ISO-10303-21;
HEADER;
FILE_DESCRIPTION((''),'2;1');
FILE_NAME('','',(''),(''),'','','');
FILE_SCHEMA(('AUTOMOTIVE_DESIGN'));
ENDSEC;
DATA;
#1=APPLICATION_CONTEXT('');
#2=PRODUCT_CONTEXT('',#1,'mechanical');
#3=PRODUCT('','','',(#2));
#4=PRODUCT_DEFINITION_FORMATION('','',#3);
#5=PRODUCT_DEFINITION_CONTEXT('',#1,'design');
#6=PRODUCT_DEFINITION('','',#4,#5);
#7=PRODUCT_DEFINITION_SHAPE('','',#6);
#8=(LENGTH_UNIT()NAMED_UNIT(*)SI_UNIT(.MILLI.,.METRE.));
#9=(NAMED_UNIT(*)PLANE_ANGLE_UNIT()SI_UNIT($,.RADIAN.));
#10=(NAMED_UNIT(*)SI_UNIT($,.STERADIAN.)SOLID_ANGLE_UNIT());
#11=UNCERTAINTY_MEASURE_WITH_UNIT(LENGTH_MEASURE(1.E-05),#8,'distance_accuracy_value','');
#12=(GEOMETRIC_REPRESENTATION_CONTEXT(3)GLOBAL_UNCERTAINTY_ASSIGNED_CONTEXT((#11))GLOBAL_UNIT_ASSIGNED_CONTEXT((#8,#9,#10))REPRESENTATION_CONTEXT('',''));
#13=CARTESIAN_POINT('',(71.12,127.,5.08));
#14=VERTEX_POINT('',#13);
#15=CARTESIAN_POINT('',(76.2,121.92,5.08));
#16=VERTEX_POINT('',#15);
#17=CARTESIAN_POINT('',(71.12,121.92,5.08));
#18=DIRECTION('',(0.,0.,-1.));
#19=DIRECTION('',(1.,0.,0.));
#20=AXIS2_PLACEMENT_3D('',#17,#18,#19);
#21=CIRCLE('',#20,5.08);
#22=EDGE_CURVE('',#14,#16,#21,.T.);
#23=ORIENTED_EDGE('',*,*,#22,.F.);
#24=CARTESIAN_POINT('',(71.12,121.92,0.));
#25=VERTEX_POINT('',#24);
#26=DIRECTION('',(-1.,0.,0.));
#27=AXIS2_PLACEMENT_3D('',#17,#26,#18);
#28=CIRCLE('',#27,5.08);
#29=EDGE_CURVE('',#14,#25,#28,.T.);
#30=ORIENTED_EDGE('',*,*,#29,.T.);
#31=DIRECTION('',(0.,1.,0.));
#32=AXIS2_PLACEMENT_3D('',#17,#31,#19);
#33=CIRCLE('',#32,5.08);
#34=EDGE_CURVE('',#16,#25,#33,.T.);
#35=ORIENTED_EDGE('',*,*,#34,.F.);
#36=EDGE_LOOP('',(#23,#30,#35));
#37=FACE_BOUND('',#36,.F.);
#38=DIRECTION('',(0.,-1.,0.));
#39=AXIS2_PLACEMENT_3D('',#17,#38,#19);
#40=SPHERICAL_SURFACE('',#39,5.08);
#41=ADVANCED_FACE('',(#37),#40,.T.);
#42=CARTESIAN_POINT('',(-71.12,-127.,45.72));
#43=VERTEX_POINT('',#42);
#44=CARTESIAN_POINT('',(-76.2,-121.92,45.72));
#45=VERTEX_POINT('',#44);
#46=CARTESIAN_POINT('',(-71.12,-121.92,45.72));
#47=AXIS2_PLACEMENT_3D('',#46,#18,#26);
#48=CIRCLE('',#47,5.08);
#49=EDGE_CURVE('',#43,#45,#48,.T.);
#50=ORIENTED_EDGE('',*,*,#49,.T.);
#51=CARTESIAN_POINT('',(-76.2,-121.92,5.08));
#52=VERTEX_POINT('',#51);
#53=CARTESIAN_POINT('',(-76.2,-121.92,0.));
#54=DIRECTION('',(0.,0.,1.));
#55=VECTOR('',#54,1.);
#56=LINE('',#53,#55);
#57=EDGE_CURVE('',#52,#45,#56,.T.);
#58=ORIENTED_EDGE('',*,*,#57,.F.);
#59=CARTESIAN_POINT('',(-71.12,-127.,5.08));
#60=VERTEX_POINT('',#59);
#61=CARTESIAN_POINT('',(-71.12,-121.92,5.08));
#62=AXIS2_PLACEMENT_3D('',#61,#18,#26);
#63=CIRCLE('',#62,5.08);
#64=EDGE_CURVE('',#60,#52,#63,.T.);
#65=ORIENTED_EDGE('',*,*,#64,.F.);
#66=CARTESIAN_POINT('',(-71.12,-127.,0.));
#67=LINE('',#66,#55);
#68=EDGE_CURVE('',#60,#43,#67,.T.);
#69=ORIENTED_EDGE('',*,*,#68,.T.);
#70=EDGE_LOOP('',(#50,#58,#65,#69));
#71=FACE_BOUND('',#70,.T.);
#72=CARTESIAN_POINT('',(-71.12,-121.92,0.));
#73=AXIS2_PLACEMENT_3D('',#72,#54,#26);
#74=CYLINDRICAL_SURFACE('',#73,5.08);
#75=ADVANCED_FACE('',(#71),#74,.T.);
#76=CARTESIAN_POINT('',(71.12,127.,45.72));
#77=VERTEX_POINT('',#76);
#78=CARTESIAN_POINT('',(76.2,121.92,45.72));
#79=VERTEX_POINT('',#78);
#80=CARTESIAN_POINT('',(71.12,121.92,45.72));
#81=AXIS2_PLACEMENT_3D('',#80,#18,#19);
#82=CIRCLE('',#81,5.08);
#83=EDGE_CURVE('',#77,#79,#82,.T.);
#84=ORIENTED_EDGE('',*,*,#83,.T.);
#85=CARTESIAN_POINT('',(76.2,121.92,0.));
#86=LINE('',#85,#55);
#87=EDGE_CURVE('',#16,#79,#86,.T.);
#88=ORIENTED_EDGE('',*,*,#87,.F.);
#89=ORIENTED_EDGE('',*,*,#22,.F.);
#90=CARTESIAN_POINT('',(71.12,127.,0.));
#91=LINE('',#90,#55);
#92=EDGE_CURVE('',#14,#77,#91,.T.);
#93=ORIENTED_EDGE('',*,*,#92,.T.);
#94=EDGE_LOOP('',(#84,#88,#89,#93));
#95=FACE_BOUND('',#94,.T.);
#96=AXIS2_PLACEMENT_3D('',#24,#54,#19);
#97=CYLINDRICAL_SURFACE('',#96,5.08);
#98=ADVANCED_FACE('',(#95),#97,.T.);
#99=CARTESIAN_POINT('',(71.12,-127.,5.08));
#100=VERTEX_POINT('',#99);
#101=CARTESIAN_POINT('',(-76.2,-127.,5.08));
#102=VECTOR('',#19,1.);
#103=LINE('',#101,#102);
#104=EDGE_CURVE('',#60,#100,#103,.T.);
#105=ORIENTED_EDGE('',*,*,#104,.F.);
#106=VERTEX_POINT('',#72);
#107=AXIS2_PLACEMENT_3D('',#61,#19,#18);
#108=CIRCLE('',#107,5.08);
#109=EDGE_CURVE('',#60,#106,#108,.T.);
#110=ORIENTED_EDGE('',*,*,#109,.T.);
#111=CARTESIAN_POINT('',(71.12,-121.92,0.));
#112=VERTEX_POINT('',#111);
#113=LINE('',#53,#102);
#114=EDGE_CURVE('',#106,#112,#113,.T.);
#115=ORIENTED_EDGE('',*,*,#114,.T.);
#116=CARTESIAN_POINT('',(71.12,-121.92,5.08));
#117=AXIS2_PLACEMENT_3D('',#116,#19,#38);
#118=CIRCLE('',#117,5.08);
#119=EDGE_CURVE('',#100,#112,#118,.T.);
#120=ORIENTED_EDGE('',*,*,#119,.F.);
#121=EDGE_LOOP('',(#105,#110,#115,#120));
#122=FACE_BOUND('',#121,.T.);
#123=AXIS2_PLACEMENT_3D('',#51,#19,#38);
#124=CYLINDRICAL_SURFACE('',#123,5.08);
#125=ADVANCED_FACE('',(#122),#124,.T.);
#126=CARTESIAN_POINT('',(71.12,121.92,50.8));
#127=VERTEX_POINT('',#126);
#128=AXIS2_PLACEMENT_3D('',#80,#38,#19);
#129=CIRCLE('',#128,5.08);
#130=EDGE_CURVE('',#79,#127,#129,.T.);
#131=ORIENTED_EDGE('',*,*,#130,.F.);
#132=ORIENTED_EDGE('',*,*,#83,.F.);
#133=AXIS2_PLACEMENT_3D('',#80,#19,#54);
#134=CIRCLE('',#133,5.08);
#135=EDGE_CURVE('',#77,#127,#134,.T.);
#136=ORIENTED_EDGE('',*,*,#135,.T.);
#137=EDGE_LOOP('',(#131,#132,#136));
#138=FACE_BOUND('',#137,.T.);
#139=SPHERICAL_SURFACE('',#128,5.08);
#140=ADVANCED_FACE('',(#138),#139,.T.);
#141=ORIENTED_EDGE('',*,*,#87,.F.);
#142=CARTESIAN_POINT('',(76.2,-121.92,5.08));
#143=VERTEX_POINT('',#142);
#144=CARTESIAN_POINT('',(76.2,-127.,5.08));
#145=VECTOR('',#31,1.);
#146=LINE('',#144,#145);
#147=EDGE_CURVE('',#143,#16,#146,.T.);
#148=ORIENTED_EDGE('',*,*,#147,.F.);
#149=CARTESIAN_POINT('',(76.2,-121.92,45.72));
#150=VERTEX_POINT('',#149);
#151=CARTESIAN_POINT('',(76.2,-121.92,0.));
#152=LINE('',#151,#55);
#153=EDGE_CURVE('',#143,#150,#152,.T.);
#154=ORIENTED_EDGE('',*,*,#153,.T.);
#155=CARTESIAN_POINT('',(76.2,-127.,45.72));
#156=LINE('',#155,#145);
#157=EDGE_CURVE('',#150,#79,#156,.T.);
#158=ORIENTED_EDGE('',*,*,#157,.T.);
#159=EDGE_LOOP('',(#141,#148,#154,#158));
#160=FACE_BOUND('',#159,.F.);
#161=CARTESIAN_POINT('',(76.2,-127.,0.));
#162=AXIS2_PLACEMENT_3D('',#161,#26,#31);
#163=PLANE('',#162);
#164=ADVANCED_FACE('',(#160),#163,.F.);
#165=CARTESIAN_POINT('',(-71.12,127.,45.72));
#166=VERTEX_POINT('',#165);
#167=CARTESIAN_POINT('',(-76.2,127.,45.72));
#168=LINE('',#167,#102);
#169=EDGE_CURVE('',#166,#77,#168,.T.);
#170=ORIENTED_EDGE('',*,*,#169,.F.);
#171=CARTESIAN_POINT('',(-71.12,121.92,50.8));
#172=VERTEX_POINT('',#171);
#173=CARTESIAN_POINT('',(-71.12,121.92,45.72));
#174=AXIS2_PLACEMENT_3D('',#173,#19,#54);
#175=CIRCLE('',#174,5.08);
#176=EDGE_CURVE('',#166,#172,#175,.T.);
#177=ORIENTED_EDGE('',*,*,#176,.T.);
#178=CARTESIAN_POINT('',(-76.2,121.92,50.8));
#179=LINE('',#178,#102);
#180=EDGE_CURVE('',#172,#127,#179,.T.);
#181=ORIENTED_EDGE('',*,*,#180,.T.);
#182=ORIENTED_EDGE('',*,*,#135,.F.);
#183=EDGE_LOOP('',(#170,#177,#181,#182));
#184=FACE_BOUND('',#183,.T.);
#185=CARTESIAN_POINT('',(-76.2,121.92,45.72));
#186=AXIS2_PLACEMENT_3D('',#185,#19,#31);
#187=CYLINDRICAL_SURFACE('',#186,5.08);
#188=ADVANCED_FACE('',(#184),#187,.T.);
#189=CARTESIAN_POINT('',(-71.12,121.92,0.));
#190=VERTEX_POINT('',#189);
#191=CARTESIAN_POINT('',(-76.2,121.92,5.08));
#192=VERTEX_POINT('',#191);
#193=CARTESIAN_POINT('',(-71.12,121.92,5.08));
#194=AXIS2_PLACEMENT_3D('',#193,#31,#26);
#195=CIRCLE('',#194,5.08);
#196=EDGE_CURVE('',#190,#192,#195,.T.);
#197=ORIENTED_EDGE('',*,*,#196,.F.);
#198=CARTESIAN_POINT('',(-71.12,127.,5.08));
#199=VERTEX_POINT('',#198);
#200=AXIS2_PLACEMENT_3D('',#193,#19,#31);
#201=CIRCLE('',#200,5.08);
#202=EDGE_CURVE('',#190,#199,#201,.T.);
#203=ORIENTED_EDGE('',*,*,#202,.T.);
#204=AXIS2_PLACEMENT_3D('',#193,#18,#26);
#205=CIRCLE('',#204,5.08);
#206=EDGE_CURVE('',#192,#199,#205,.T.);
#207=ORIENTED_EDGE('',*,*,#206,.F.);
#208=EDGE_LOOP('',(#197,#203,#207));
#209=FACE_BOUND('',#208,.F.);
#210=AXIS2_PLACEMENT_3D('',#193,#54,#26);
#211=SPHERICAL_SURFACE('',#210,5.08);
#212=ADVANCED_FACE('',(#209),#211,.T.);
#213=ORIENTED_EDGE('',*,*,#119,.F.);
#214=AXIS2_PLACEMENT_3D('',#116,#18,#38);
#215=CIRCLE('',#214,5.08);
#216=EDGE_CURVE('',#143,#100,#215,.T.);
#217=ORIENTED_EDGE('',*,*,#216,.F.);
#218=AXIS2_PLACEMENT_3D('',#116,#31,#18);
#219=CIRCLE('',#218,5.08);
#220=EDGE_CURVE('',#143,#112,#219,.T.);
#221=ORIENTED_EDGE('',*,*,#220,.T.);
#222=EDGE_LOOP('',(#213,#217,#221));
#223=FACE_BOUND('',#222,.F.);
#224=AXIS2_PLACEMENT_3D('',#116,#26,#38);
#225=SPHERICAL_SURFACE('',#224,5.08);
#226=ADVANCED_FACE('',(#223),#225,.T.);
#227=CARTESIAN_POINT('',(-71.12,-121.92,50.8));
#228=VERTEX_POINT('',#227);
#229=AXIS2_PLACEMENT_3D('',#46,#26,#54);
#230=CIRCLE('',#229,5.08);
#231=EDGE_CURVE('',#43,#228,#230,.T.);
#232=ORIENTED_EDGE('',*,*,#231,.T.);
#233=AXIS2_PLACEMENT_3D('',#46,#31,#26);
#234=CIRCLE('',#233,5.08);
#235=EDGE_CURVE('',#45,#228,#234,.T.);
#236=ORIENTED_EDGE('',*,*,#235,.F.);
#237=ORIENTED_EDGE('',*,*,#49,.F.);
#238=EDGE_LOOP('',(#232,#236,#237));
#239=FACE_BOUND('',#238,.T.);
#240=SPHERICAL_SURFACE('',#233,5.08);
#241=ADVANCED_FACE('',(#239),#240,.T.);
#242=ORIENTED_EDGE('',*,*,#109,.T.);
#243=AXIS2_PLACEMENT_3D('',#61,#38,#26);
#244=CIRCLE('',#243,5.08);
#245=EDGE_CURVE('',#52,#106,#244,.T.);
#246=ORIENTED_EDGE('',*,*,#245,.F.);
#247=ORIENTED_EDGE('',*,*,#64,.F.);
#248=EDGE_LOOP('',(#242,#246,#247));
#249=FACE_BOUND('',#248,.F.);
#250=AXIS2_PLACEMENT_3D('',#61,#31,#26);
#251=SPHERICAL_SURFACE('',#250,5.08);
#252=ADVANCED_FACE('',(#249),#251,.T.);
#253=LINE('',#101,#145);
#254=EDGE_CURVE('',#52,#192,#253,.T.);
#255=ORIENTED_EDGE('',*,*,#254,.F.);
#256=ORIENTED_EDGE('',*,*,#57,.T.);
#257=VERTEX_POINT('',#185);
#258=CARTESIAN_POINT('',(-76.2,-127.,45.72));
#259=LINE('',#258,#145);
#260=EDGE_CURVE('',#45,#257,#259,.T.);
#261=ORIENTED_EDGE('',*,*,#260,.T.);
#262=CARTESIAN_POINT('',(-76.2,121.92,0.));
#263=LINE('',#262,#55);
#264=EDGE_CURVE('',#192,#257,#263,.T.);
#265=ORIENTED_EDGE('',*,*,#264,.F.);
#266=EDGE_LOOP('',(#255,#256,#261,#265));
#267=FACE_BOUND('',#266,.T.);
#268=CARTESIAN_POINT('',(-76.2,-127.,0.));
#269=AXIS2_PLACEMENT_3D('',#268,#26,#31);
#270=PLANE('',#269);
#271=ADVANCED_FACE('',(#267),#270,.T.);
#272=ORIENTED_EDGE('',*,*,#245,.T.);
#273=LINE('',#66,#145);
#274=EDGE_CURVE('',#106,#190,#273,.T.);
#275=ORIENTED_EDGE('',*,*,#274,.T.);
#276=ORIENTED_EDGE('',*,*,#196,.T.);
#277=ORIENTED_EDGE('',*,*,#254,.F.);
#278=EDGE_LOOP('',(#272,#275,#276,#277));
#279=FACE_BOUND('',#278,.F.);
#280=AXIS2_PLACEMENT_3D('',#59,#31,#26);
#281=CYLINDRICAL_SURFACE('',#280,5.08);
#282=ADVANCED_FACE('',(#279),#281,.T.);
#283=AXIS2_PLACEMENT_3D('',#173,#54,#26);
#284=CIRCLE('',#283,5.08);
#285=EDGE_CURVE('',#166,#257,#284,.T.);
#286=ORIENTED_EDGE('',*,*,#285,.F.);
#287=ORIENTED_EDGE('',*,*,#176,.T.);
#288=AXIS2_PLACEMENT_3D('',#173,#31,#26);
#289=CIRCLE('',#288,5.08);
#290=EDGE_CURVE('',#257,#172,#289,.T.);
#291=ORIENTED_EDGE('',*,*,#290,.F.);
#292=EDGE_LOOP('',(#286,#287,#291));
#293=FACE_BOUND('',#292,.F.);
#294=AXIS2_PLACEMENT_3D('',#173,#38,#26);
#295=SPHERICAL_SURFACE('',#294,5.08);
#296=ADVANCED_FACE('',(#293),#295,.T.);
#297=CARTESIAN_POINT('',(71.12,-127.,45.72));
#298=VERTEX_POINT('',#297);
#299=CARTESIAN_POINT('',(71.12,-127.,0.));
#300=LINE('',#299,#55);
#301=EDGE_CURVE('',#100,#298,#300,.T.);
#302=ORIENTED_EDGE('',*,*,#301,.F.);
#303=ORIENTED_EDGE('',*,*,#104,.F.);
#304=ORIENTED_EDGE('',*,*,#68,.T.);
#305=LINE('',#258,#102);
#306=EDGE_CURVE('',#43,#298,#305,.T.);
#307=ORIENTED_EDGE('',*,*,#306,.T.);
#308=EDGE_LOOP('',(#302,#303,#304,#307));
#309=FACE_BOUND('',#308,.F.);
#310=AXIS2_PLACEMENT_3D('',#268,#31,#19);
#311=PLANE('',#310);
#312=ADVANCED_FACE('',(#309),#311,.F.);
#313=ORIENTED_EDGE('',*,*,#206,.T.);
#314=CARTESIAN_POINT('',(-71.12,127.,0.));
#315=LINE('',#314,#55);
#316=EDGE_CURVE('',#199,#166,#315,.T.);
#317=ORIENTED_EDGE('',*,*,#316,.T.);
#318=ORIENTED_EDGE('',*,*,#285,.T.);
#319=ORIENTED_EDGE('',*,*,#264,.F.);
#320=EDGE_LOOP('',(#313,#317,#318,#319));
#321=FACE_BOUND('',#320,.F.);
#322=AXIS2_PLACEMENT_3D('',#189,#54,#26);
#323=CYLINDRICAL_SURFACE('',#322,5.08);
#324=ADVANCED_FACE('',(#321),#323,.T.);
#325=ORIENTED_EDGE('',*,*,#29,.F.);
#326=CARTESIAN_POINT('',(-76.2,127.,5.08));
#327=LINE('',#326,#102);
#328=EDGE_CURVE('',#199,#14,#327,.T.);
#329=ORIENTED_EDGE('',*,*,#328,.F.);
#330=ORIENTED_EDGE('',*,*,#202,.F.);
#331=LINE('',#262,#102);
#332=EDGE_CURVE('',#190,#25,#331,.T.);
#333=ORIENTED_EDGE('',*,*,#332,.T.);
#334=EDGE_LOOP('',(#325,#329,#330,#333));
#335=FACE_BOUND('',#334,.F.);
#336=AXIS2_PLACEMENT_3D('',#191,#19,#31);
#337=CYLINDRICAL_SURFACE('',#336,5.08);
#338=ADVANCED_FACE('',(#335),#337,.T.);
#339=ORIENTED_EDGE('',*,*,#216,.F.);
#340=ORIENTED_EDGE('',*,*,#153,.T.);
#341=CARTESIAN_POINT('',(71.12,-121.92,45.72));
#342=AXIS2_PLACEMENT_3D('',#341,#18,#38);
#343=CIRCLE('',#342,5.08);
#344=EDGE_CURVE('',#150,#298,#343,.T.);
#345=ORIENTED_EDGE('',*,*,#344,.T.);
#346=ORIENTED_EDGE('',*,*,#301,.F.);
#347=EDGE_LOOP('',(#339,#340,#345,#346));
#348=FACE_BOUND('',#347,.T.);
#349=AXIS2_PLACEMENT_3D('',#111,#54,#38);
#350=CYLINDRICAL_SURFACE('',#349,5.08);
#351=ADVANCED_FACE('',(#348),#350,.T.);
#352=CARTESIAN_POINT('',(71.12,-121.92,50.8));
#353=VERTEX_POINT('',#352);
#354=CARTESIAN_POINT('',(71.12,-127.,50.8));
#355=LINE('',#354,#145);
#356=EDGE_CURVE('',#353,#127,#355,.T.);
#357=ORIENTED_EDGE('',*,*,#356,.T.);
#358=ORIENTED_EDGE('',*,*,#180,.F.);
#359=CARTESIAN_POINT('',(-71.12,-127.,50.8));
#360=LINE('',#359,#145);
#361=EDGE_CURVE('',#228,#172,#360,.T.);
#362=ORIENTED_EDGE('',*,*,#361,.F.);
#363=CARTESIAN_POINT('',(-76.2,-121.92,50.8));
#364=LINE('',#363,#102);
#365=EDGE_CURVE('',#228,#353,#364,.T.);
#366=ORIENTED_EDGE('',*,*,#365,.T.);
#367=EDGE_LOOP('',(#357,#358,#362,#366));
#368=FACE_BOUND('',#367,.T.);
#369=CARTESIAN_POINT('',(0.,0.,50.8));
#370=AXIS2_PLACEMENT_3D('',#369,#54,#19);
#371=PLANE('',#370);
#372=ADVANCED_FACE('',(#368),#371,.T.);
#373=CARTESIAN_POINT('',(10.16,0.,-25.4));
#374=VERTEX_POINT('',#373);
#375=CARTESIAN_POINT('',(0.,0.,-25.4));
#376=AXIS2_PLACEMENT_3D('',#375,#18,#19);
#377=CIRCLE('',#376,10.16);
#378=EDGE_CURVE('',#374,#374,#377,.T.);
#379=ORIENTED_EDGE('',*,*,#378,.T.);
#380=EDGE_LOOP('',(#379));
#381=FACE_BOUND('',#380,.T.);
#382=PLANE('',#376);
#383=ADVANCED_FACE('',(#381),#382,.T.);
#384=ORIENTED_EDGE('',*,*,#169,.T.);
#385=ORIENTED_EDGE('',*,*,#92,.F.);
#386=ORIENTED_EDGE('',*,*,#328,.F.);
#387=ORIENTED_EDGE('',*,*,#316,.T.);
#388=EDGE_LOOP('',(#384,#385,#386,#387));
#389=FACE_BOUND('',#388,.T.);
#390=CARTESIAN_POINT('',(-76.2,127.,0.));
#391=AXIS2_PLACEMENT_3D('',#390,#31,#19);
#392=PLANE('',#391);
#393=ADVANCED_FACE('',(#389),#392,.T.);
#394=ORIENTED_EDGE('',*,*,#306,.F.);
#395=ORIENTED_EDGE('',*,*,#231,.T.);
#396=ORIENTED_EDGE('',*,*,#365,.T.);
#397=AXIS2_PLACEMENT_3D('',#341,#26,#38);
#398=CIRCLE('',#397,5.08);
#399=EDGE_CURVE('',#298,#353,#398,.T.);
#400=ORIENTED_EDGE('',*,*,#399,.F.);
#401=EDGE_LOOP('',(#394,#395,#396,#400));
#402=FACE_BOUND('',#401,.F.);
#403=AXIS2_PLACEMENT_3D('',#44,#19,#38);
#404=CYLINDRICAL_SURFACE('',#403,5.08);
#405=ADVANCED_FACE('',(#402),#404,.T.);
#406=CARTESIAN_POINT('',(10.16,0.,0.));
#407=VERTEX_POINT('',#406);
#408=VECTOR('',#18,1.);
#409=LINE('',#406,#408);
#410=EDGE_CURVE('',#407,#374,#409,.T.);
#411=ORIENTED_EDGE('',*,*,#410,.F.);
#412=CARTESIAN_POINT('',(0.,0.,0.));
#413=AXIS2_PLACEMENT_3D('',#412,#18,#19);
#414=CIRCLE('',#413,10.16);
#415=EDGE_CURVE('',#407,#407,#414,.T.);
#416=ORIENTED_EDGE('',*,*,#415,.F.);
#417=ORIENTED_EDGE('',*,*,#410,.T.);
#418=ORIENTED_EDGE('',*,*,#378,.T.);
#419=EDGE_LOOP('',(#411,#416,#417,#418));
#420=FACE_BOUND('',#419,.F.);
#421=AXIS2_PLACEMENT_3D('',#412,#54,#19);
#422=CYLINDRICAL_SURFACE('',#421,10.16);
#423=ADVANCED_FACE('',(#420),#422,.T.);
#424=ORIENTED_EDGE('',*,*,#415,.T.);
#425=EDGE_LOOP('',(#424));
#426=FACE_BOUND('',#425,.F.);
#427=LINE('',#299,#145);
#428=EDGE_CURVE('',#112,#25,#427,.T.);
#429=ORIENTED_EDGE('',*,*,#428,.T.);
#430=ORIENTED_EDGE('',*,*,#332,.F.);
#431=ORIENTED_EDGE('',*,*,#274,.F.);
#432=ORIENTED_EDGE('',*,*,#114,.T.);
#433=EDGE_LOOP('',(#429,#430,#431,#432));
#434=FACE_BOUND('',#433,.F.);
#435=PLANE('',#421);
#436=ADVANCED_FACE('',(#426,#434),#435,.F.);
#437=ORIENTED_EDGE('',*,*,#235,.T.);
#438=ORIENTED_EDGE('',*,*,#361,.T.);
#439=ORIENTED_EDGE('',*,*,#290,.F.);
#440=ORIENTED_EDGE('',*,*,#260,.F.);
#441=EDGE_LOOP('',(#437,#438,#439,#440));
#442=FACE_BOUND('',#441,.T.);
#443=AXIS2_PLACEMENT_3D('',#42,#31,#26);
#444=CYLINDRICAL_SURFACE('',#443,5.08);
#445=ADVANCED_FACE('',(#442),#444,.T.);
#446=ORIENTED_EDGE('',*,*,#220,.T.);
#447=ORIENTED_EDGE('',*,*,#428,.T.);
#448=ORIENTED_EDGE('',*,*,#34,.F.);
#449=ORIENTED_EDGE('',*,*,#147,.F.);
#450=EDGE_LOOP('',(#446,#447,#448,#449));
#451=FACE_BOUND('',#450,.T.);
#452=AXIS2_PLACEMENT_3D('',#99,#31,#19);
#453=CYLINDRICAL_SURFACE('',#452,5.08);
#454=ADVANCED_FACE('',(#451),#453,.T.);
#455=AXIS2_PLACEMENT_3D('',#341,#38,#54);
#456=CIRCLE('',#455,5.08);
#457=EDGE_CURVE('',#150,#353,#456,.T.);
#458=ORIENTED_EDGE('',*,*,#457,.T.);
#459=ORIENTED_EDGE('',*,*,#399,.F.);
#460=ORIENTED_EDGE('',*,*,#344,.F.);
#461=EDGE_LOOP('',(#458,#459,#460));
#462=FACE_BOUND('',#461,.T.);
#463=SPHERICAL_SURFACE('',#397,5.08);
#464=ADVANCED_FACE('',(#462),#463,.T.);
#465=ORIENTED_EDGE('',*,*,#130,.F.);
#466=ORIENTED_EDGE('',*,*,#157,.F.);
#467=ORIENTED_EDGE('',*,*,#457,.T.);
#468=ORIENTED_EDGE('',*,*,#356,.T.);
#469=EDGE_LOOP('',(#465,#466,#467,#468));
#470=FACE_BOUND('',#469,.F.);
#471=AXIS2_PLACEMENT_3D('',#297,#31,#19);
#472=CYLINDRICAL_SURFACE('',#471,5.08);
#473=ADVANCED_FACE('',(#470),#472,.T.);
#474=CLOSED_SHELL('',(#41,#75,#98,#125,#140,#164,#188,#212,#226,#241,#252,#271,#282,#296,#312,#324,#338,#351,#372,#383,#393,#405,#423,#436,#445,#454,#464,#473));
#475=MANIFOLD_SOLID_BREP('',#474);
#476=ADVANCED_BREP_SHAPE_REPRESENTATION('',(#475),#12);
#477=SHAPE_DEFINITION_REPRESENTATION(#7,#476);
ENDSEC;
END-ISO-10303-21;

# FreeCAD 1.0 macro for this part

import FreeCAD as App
import Part
import Sketcher

V = App.Vector
Q = App.Units.Quantity


def add_polygon(sketch, points):
    """Adds a closed chain of lines whose ends are joined by coincident constraints."""
    first, n = sketch.GeometryCount, len(points)
    for a, b in zip(points, points[1:] + points[:1]):
        sketch.addGeometry(Part.LineSegment(App.Vector(*a, 0), App.Vector(*b, 0)), False)
    for i in range(n):
        sketch.addConstraint(Sketcher.Constraint("Coincident", first + i, 2, first + (i + 1) % n, 1))

doc = App.newDocument("Part")
body = doc.addObject("PartDesign::Body", "Body")

# Sketch on XY plane
sketch1 = doc.addObject("Sketcher::SketchObject", "Sketch")
body.addObject(sketch1)
sketch1.AttachmentSupport = (doc.XY_Plane, [""])
sketch1.MapMode = "FlatFace"
add_polygon(sketch1, [(-76, 127), (-76, -127), (76, -127), (76, 127)])  # lines 0-3
sketch1.addConstraint([
    Sketcher.Constraint("Vertical", 0),
    Sketcher.Constraint("Horizontal", 1),
    Sketcher.Constraint("Vertical", 2),
    Sketcher.Constraint("Horizontal", 3),
    Sketcher.Constraint("Symmetric", 0, 2, 2, 2, -1, 1),
    Sketcher.Constraint("DistanceX", 1, 1, 1, 2, Q("6 in")),
    Sketcher.Constraint("DistanceY", 0, 2, 0, 1, Q("10 in")),
])
pad1 = doc.addObject("PartDesign::Pad", "Pad")
body.addObject(pad1)
pad1.Profile = sketch1
pad1.Length = Q("2 in")
doc.recompute()

fillet = doc.addObject("PartDesign::Fillet", "Fillet")
body.addObject(fillet)
fillet.Base = (pad1, ["Edge1"])
fillet.UseAllEdges = True
fillet.Radius = Q("0.2 in")

# Sketch on XY plane
sketch2 = doc.addObject("Sketcher::SketchObject", "Sketch001")
body.addObject(sketch2)
sketch2.AttachmentSupport = (doc.XY_Plane, [""])
sketch2.MapMode = "FlatFace"
sketch2.addGeometry(Part.Circle(V(0, 0, 0), V(0, 0, 1), 10), False)
sketch2.addConstraint([
    Sketcher.Constraint("Coincident", 0, 3, -1, 1),
    Sketcher.Constraint("Diameter", 0, Q("0.8 in")),
])
pad2 = doc.addObject("PartDesign::Pad", "Pad001")
body.addObject(pad2)
pad2.Profile = sketch2
pad2.Length = Q("1 in")
pad2.Reversed = True

doc.recompute()
